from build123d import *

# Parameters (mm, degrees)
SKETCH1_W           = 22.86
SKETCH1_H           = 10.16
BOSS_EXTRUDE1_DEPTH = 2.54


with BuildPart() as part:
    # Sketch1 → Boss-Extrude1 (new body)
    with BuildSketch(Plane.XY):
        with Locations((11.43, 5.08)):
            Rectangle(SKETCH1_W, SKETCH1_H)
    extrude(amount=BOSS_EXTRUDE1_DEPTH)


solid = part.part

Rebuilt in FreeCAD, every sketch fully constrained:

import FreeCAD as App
import Part
import Sketcher

V = App.Vector
Q = App.Units.Quantity


def add_polygon(sketch, points):
    """Adds a closed chain of lines whose ends are joined by coincident constraints."""
    first, n = sketch.GeometryCount, len(points)
    for a, b in zip(points, points[1:] + points[:1]):
        sketch.addGeometry(Part.LineSegment(App.Vector(*a, 0), App.Vector(*b, 0)), False)
    for i in range(n):
        sketch.addConstraint(Sketcher.Constraint("Coincident", first + i, 2, first + (i + 1) % n, 1))

doc = App.newDocument("Part")
body = doc.addObject("PartDesign::Body", "Body")

# Sketch on XY plane
sketch1 = body.newObject("Sketcher::SketchObject", "Sketch")
sketch1.AttachmentSupport = (doc.getObject("XY_Plane"), [""])
sketch1.MapMode = "FlatFace"
add_polygon(sketch1, [(0, 10.16), (0, 0), (22.86, 0), (22.86, 10.16)])  # lines 0-3
sketch1.addConstraint(Sketcher.Constraint("Vertical", 0))
sketch1.addConstraint(Sketcher.Constraint("Horizontal", 1))
sketch1.addConstraint(Sketcher.Constraint("Vertical", 2))
sketch1.addConstraint(Sketcher.Constraint("Horizontal", 3))
sketch1.addConstraint(Sketcher.Constraint("Coincident", 0, 2, -1, 1))
sketch1.addConstraint(Sketcher.Constraint("DistanceX", 1, 1, 1, 2, Q("0.9 in")))
sketch1.addConstraint(Sketcher.Constraint("DistanceY", 0, 2, 0, 1, Q("0.4 in")))
pad1 = body.newObject("PartDesign::Pad", "Pad")
pad1.Profile = sketch1
pad1.Length = Q("0.1 in")

doc.recompute()
